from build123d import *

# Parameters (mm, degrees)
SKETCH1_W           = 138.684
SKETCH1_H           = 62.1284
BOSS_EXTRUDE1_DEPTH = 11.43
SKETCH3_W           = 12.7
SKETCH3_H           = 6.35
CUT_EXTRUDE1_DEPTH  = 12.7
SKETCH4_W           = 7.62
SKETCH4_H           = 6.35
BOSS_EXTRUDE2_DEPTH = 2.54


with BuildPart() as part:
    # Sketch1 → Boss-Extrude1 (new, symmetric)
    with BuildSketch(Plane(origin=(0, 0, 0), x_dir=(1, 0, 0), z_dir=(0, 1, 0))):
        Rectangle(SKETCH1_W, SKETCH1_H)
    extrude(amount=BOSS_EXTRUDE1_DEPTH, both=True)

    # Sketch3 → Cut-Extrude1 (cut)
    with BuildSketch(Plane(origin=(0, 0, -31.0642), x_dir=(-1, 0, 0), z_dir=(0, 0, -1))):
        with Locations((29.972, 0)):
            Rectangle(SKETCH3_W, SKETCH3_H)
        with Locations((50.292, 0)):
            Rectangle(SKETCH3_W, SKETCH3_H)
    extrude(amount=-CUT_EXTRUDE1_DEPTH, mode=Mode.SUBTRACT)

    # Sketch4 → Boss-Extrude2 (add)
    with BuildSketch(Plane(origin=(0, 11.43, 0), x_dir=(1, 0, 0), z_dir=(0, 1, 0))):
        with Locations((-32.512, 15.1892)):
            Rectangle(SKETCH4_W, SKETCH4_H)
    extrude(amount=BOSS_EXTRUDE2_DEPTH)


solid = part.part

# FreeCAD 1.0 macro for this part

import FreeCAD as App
import Part
import Sketcher

V = App.Vector
Q = App.Units.Quantity

doc = App.newDocument("Part")
params = doc.addObject("Spreadsheet::Sheet", "Params")
for row, (alias, value) in enumerate([
    ("sketch1_width", "5.46 in"),
    ("sketch1_height", "2.446 in"),
    ("pad1_length", "0.9 in"),
    ("sketch2_width", "0.5 in"),
    ("sketch2_height", "0.25 in"),
    ("pocket1_length", "0.5 in"),
    ("sketch3_width", "0.3 in"),
    ("sketch3_height", "0.25 in"),
    ("pad2_length", "0.1 in"),
], start=1):
    params.set(f"A{row}", alias)
    params.set(f"B{row}", "=" + value)
    params.setAlias(f"B{row}", alias)

body = doc.addObject("PartDesign::Body", "Body")

# Sketch on XZ plane
sketch1 = body.newObject("Sketcher::SketchObject", "Sketch")
sketch1.AttachmentSupport = (doc.getObject("XZ_Plane"), [""])
sketch1.MapMode = "FlatFace"
sketch1.addGeometry(Part.LineSegment(V(-69, -31, 0), V(-69, 31, 0)), False)
sketch1.addGeometry(Part.LineSegment(V(-69, 31, 0), V(69, 31, 0)), False)
sketch1.addGeometry(Part.LineSegment(V(69, 31, 0), V(69, -31, 0)), False)
sketch1.addGeometry(Part.LineSegment(V(69, -31, 0), V(-69, -31, 0)), False)
sketch1.addConstraint(Sketcher.Constraint("Coincident", 0, 2, 1, 1))
sketch1.addConstraint(Sketcher.Constraint("Coincident", 1, 2, 2, 1))
sketch1.addConstraint(Sketcher.Constraint("Coincident", 2, 2, 3, 1))
sketch1.addConstraint(Sketcher.Constraint("Coincident", 3, 2, 0, 1))
sketch1.addConstraint(Sketcher.Constraint("Vertical", 0))
sketch1.addConstraint(Sketcher.Constraint("Horizontal", 1))
sketch1.addConstraint(Sketcher.Constraint("Vertical", 2))
sketch1.addConstraint(Sketcher.Constraint("Horizontal", 3))
sketch1.addConstraint(Sketcher.Constraint("Symmetric", 0, 2, 2, 2, -1, 1))
sketch1.addConstraint(Sketcher.Constraint("DistanceX", 1, 1, 1, 2, Q("5.46 in")))
sketch1.addConstraint(Sketcher.Constraint("DistanceY", 0, 1, 0, 2, Q("2.446 in")))
sketch1.setExpression("Constraints[9]", "Params.sketch1_width")
sketch1.setExpression("Constraints[10]", "Params.sketch1_height")
pad1 = body.newObject("PartDesign::Pad", "Pad")
pad1.Profile = sketch1
pad1.setExpression("Length", "Params.pad1_length")
pad1.Midplane = True

# Sketch on XY plane
sketch2 = body.newObject("Sketcher::SketchObject", "Sketch001")
sketch2.AttachmentSupport = (doc.getObject("XY_Plane"), [""])
sketch2.MapMode = "FlatFace"
sketch2.AttachmentOffset = App.Placement(V(0, 0, -1.223 * 25.4), App.Rotation())
sketch2.addGeometry(Part.LineSegment(V(-24, 3, 0), V(-24, -3, 0)), False)
sketch2.addGeometry(Part.LineSegment(V(-24, -3, 0), V(-36, -3, 0)), False)
sketch2.addGeometry(Part.LineSegment(V(-36, -3, 0), V(-36, 3, 0)), False)
sketch2.addGeometry(Part.LineSegment(V(-36, 3, 0), V(-24, 3, 0)), False)
sketch2.addGeometry(Part.LineSegment(V(-44, 3, 0), V(-44, -3, 0)), False)
sketch2.addGeometry(Part.LineSegment(V(-44, -3, 0), V(-57, -3, 0)), False)
sketch2.addGeometry(Part.LineSegment(V(-57, -3, 0), V(-57, 3, 0)), False)
sketch2.addGeometry(Part.LineSegment(V(-57, 3, 0), V(-44, 3, 0)), False)
sketch2.addConstraint(Sketcher.Constraint("Coincident", 0, 2, 1, 1))
sketch2.addConstraint(Sketcher.Constraint("Coincident", 1, 2, 2, 1))
sketch2.addConstraint(Sketcher.Constraint("Coincident", 2, 2, 3, 1))
sketch2.addConstraint(Sketcher.Constraint("Coincident", 3, 2, 0, 1))
sketch2.addConstraint(Sketcher.Constraint("Coincident", 4, 2, 5, 1))
sketch2.addConstraint(Sketcher.Constraint("Coincident", 5, 2, 6, 1))
sketch2.addConstraint(Sketcher.Constraint("Coincident", 6, 2, 7, 1))
sketch2.addConstraint(Sketcher.Constraint("Coincident", 7, 2, 4, 1))
sketch2.addConstraint(Sketcher.Constraint("Vertical", 0))
sketch2.addConstraint(Sketcher.Constraint("Horizontal", 1))
sketch2.addConstraint(Sketcher.Constraint("Vertical", 2))
sketch2.addConstraint(Sketcher.Constraint("Horizontal", 3))
sketch2.addConstraint(Sketcher.Constraint("Vertical", 4))
sketch2.addConstraint(Sketcher.Constraint("Horizontal", 5))
sketch2.addConstraint(Sketcher.Constraint("Vertical", 6))
sketch2.addConstraint(Sketcher.Constraint("Horizontal", 7))
sketch2.addConstraint(Sketcher.Constraint("Horizontal", 1, 2, 4, 2))
sketch2.addConstraint(Sketcher.Constraint("Horizontal", 3, 2, 6, 2))
sketch2.addConstraint(Sketcher.Constraint("Equal", 3, 5))
sketch2.addConstraint(Sketcher.Constraint("DistanceX", 1, 2, 1, 1, Q("0.5 in")))
sketch2.addConstraint(Sketcher.Constraint("DistanceY", 0, 2, 0, 1, Q("0.25 in")))
sketch2.addConstraint(Sketcher.Constraint("DistanceX", 4, 2, 1, 2, Q("0.3 in")))
sketch2.addConstraint(Sketcher.Constraint("DistanceX", 0, 2, -1, 1, Q("0.93 in")))
sketch2.addConstraint(Sketcher.Constraint("DistanceY", 0, 2, -1, 1, Q("0.125 in")))
sketch2.setExpression("Constraints[19]", "Params.sketch2_width")
sketch2.setExpression("Constraints[20]", "Params.sketch2_height")
pocket1 = body.newObject("PartDesign::Pocket", "Pocket")
pocket1.Profile = sketch2
pocket1.setExpression("Length", "Params.pocket1_length")
pocket1.Reversed = True

# Sketch on XZ plane
sketch3 = body.newObject("Sketcher::SketchObject", "Sketch002")
sketch3.AttachmentSupport = (doc.getObject("XZ_Plane"), [""])
sketch3.MapMode = "FlatFace"
sketch3.AttachmentOffset = App.Placement(V(0, 0, -0.45 * 25.4), App.Rotation())
sketch3.addGeometry(Part.LineSegment(V(-36, -18, 0), V(-36, -12, 0)), False)
sketch3.addGeometry(Part.LineSegment(V(-36, -12, 0), V(-29, -12, 0)), False)
sketch3.addGeometry(Part.LineSegment(V(-29, -12, 0), V(-29, -18, 0)), False)
sketch3.addGeometry(Part.LineSegment(V(-29, -18, 0), V(-36, -18, 0)), False)
sketch3.addConstraint(Sketcher.Constraint("Coincident", 0, 2, 1, 1))
sketch3.addConstraint(Sketcher.Constraint("Coincident", 1, 2, 2, 1))
sketch3.addConstraint(Sketcher.Constraint("Coincident", 2, 2, 3, 1))
sketch3.addConstraint(Sketcher.Constraint("Coincident", 3, 2, 0, 1))
sketch3.addConstraint(Sketcher.Constraint("Vertical", 0))
sketch3.addConstraint(Sketcher.Constraint("Horizontal", 1))
sketch3.addConstraint(Sketcher.Constraint("Vertical", 2))
sketch3.addConstraint(Sketcher.Constraint("Horizontal", 3))
sketch3.addConstraint(Sketcher.Constraint("DistanceX", 1, 1, 1, 2, Q("0.3 in")))
sketch3.addConstraint(Sketcher.Constraint("DistanceY", 0, 1, 0, 2, Q("0.25 in")))
sketch3.addConstraint(Sketcher.Constraint("DistanceX", 0, 2, -1, 1, Q("1.43 in")))
sketch3.addConstraint(Sketcher.Constraint("DistanceY", 0, 2, -1, 1, Q("0.473 in")))
sketch3.setExpression("Constraints[8]", "Params.sketch3_width")
sketch3.setExpression("Constraints[9]", "Params.sketch3_height")
pad2 = body.newObject("PartDesign::Pad", "Pad001")
pad2.Profile = sketch3
pad2.setExpression("Length", "Params.pad2_length")
pad2.Reversed = True

doc.recompute()
